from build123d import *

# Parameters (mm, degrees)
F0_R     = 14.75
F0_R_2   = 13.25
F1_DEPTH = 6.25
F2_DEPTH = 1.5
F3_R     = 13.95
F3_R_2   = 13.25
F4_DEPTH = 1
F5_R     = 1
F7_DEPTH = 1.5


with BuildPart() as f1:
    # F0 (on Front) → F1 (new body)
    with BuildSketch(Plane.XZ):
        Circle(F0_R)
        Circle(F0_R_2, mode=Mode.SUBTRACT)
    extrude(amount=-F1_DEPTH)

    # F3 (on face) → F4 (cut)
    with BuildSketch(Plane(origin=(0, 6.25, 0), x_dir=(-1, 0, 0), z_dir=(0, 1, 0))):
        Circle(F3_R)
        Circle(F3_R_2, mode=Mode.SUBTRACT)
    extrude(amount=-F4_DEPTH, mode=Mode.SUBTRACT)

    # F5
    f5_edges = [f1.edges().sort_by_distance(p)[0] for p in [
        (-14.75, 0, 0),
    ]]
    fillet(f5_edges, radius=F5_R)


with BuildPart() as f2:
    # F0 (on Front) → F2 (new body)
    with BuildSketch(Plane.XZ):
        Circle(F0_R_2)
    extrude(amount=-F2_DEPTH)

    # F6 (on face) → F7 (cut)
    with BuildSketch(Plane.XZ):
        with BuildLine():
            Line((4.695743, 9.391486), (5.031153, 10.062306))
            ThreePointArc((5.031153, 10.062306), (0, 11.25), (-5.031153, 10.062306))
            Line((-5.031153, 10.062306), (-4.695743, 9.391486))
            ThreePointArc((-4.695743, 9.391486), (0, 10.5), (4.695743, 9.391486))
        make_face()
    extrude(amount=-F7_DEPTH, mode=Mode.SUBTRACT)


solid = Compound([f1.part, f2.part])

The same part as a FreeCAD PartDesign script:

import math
import FreeCAD as App
import Part
import Sketcher


def edges_at(feature, points):
    """Names of the edges that pass closest to the given points."""
    edges = feature.Shape.Edges
    near = lambda p: min(range(len(edges)), key=lambda i: edges[i].distToShape(Part.Vertex(*p))[0])
    return sorted({f"Edge{near(p) + 1}" for p in points})

doc = App.newDocument("Part")
body = doc.addObject("PartDesign::Body", "Body")

# Sketch on XZ plane
sketch1 = doc.addObject("Sketcher::SketchObject", "Sketch")
body.addObject(sketch1)
sketch1.AttachmentSupport = (doc.XZ_Plane, [""])
sketch1.MapMode = "FlatFace"
sketch1.addGeometry([
    Part.Circle(App.Vector(0, 0, 0), App.Vector(0, 0, 1), 15),
    Part.Circle(App.Vector(0, 0, 0), App.Vector(0, 0, 1), 13),
], False)
sketch1.addConstraint([
    Sketcher.Constraint("Coincident", 0, 3, -1, 1),
    Sketcher.Constraint("Coincident", 1, 3, -1, 1),
    Sketcher.Constraint("Diameter", 0, 29.5),
    Sketcher.Constraint("Diameter", 1, 26.5),
])
pad1 = doc.addObject("PartDesign::Pad", "Pad")
body.addObject(pad1)
pad1.Profile = sketch1
pad1.Length = 6.25
pad1.Reversed = True

# Sketch on XZ plane
sketch2 = doc.addObject("Sketcher::SketchObject", "Sketch001")
body.addObject(sketch2)
sketch2.AttachmentSupport = (doc.XZ_Plane, [""])
sketch2.MapMode = "FlatFace"
sketch2.AttachmentOffset = App.Placement(App.Vector(0, 0, -6.25), App.Rotation())
sketch2.addGeometry([
    Part.Circle(App.Vector(0, 0, 0), App.Vector(0, 0, 1), 14),
    Part.Circle(App.Vector(0, 0, 0), App.Vector(0, 0, 1), 13),
], False)
sketch2.addConstraint([
    Sketcher.Constraint("Coincident", 0, 3, -1, 1),
    Sketcher.Constraint("Coincident", 1, 3, -1, 1),
    Sketcher.Constraint("Diameter", 0, 27.9),
    Sketcher.Constraint("Diameter", 1, 26.5),
])
pocket1 = doc.addObject("PartDesign::Pocket", "Pocket")
body.addObject(pocket1)
pocket1.Profile = sketch2
pocket1.Length = 1
pocket1.Reversed = True
doc.recompute()

fillet = doc.addObject("PartDesign::Fillet", "Fillet")
body.addObject(fillet)
fillet.Base = (pocket1, edges_at(pocket1, [(-14.75, 0, 0)]))
fillet.Radius = 1
body2 = doc.addObject("PartDesign::Body", "Body001")

# Sketch on XZ plane
sketch3 = doc.addObject("Sketcher::SketchObject", "Sketch002")
body2.addObject(sketch3)
sketch3.AttachmentSupport = (doc.getObject("XZ_Plane001"), [""])
sketch3.MapMode = "FlatFace"
sketch3.addGeometry(Part.Circle(App.Vector(0, 0, 0), App.Vector(0, 0, 1), 13), False)
sketch3.addConstraint([
    Sketcher.Constraint("Coincident", 0, 3, -1, 1),
    Sketcher.Constraint("Diameter", 0, 26.5),
])
pad2 = doc.addObject("PartDesign::Pad", "Pad001")
body2.addObject(pad2)
pad2.Profile = sketch3
pad2.Length = 1.5
pad2.Reversed = True

# Sketch on XZ plane
sketch4 = doc.addObject("Sketcher::SketchObject", "Sketch003")
body2.addObject(sketch4)
sketch4.AttachmentSupport = (doc.getObject("XZ_Plane001"), [""])
sketch4.MapMode = "FlatFace"
sketch4.addGeometry([
    Part.LineSegment(App.Vector(4.7, 9.4, 0), App.Vector(5, 10.1, 0)),
    Part.ArcOfCircle(Part.Circle(App.Vector(0, 0, 0), App.Vector(0, 0, 1), 11.3), math.radians(63), math.radians(117)),
    Part.LineSegment(App.Vector(-5, 10.1, 0), App.Vector(-4.7, 9.4, 0)),
    Part.ArcOfCircle(Part.Circle(App.Vector(0, 0, 0), App.Vector(0, 0, 1), 10.5), math.radians(63), math.radians(117)),
], False)
sketch4.addConstraint([
    Sketcher.Constraint("Coincident", 0, 2, 1, 1),
    Sketcher.Constraint("Coincident", 1, 2, 2, 1),
    Sketcher.Constraint("Coincident", 2, 2, 3, 2),
    Sketcher.Constraint("Coincident", 3, 1, 0, 1),
    Sketcher.Constraint("Coincident", 1, 3, -1, 1),
    Sketcher.Constraint("Coincident", 3, 3, -1, 1),
    Sketcher.Constraint("Horizontal", 0, 2, 1, 2),
    Sketcher.Constraint("Horizontal", 2, 2, 3, 1),
    Sketcher.Constraint("Radius", 1, 11.250001),
    Sketcher.Constraint("Distance", 0, 0.75),
    Sketcher.Constraint("DistanceY", 3, 3, 0, 2, 10.062311),
    Sketcher.Constraint("DistanceX", 1, 2, 2, 2, 0.33541),
])
pocket2 = doc.addObject("PartDesign::Pocket", "Pocket001")
body2.addObject(pocket2)
pocket2.Profile = sketch4
pocket2.Length = 1.5

doc.recompute()
